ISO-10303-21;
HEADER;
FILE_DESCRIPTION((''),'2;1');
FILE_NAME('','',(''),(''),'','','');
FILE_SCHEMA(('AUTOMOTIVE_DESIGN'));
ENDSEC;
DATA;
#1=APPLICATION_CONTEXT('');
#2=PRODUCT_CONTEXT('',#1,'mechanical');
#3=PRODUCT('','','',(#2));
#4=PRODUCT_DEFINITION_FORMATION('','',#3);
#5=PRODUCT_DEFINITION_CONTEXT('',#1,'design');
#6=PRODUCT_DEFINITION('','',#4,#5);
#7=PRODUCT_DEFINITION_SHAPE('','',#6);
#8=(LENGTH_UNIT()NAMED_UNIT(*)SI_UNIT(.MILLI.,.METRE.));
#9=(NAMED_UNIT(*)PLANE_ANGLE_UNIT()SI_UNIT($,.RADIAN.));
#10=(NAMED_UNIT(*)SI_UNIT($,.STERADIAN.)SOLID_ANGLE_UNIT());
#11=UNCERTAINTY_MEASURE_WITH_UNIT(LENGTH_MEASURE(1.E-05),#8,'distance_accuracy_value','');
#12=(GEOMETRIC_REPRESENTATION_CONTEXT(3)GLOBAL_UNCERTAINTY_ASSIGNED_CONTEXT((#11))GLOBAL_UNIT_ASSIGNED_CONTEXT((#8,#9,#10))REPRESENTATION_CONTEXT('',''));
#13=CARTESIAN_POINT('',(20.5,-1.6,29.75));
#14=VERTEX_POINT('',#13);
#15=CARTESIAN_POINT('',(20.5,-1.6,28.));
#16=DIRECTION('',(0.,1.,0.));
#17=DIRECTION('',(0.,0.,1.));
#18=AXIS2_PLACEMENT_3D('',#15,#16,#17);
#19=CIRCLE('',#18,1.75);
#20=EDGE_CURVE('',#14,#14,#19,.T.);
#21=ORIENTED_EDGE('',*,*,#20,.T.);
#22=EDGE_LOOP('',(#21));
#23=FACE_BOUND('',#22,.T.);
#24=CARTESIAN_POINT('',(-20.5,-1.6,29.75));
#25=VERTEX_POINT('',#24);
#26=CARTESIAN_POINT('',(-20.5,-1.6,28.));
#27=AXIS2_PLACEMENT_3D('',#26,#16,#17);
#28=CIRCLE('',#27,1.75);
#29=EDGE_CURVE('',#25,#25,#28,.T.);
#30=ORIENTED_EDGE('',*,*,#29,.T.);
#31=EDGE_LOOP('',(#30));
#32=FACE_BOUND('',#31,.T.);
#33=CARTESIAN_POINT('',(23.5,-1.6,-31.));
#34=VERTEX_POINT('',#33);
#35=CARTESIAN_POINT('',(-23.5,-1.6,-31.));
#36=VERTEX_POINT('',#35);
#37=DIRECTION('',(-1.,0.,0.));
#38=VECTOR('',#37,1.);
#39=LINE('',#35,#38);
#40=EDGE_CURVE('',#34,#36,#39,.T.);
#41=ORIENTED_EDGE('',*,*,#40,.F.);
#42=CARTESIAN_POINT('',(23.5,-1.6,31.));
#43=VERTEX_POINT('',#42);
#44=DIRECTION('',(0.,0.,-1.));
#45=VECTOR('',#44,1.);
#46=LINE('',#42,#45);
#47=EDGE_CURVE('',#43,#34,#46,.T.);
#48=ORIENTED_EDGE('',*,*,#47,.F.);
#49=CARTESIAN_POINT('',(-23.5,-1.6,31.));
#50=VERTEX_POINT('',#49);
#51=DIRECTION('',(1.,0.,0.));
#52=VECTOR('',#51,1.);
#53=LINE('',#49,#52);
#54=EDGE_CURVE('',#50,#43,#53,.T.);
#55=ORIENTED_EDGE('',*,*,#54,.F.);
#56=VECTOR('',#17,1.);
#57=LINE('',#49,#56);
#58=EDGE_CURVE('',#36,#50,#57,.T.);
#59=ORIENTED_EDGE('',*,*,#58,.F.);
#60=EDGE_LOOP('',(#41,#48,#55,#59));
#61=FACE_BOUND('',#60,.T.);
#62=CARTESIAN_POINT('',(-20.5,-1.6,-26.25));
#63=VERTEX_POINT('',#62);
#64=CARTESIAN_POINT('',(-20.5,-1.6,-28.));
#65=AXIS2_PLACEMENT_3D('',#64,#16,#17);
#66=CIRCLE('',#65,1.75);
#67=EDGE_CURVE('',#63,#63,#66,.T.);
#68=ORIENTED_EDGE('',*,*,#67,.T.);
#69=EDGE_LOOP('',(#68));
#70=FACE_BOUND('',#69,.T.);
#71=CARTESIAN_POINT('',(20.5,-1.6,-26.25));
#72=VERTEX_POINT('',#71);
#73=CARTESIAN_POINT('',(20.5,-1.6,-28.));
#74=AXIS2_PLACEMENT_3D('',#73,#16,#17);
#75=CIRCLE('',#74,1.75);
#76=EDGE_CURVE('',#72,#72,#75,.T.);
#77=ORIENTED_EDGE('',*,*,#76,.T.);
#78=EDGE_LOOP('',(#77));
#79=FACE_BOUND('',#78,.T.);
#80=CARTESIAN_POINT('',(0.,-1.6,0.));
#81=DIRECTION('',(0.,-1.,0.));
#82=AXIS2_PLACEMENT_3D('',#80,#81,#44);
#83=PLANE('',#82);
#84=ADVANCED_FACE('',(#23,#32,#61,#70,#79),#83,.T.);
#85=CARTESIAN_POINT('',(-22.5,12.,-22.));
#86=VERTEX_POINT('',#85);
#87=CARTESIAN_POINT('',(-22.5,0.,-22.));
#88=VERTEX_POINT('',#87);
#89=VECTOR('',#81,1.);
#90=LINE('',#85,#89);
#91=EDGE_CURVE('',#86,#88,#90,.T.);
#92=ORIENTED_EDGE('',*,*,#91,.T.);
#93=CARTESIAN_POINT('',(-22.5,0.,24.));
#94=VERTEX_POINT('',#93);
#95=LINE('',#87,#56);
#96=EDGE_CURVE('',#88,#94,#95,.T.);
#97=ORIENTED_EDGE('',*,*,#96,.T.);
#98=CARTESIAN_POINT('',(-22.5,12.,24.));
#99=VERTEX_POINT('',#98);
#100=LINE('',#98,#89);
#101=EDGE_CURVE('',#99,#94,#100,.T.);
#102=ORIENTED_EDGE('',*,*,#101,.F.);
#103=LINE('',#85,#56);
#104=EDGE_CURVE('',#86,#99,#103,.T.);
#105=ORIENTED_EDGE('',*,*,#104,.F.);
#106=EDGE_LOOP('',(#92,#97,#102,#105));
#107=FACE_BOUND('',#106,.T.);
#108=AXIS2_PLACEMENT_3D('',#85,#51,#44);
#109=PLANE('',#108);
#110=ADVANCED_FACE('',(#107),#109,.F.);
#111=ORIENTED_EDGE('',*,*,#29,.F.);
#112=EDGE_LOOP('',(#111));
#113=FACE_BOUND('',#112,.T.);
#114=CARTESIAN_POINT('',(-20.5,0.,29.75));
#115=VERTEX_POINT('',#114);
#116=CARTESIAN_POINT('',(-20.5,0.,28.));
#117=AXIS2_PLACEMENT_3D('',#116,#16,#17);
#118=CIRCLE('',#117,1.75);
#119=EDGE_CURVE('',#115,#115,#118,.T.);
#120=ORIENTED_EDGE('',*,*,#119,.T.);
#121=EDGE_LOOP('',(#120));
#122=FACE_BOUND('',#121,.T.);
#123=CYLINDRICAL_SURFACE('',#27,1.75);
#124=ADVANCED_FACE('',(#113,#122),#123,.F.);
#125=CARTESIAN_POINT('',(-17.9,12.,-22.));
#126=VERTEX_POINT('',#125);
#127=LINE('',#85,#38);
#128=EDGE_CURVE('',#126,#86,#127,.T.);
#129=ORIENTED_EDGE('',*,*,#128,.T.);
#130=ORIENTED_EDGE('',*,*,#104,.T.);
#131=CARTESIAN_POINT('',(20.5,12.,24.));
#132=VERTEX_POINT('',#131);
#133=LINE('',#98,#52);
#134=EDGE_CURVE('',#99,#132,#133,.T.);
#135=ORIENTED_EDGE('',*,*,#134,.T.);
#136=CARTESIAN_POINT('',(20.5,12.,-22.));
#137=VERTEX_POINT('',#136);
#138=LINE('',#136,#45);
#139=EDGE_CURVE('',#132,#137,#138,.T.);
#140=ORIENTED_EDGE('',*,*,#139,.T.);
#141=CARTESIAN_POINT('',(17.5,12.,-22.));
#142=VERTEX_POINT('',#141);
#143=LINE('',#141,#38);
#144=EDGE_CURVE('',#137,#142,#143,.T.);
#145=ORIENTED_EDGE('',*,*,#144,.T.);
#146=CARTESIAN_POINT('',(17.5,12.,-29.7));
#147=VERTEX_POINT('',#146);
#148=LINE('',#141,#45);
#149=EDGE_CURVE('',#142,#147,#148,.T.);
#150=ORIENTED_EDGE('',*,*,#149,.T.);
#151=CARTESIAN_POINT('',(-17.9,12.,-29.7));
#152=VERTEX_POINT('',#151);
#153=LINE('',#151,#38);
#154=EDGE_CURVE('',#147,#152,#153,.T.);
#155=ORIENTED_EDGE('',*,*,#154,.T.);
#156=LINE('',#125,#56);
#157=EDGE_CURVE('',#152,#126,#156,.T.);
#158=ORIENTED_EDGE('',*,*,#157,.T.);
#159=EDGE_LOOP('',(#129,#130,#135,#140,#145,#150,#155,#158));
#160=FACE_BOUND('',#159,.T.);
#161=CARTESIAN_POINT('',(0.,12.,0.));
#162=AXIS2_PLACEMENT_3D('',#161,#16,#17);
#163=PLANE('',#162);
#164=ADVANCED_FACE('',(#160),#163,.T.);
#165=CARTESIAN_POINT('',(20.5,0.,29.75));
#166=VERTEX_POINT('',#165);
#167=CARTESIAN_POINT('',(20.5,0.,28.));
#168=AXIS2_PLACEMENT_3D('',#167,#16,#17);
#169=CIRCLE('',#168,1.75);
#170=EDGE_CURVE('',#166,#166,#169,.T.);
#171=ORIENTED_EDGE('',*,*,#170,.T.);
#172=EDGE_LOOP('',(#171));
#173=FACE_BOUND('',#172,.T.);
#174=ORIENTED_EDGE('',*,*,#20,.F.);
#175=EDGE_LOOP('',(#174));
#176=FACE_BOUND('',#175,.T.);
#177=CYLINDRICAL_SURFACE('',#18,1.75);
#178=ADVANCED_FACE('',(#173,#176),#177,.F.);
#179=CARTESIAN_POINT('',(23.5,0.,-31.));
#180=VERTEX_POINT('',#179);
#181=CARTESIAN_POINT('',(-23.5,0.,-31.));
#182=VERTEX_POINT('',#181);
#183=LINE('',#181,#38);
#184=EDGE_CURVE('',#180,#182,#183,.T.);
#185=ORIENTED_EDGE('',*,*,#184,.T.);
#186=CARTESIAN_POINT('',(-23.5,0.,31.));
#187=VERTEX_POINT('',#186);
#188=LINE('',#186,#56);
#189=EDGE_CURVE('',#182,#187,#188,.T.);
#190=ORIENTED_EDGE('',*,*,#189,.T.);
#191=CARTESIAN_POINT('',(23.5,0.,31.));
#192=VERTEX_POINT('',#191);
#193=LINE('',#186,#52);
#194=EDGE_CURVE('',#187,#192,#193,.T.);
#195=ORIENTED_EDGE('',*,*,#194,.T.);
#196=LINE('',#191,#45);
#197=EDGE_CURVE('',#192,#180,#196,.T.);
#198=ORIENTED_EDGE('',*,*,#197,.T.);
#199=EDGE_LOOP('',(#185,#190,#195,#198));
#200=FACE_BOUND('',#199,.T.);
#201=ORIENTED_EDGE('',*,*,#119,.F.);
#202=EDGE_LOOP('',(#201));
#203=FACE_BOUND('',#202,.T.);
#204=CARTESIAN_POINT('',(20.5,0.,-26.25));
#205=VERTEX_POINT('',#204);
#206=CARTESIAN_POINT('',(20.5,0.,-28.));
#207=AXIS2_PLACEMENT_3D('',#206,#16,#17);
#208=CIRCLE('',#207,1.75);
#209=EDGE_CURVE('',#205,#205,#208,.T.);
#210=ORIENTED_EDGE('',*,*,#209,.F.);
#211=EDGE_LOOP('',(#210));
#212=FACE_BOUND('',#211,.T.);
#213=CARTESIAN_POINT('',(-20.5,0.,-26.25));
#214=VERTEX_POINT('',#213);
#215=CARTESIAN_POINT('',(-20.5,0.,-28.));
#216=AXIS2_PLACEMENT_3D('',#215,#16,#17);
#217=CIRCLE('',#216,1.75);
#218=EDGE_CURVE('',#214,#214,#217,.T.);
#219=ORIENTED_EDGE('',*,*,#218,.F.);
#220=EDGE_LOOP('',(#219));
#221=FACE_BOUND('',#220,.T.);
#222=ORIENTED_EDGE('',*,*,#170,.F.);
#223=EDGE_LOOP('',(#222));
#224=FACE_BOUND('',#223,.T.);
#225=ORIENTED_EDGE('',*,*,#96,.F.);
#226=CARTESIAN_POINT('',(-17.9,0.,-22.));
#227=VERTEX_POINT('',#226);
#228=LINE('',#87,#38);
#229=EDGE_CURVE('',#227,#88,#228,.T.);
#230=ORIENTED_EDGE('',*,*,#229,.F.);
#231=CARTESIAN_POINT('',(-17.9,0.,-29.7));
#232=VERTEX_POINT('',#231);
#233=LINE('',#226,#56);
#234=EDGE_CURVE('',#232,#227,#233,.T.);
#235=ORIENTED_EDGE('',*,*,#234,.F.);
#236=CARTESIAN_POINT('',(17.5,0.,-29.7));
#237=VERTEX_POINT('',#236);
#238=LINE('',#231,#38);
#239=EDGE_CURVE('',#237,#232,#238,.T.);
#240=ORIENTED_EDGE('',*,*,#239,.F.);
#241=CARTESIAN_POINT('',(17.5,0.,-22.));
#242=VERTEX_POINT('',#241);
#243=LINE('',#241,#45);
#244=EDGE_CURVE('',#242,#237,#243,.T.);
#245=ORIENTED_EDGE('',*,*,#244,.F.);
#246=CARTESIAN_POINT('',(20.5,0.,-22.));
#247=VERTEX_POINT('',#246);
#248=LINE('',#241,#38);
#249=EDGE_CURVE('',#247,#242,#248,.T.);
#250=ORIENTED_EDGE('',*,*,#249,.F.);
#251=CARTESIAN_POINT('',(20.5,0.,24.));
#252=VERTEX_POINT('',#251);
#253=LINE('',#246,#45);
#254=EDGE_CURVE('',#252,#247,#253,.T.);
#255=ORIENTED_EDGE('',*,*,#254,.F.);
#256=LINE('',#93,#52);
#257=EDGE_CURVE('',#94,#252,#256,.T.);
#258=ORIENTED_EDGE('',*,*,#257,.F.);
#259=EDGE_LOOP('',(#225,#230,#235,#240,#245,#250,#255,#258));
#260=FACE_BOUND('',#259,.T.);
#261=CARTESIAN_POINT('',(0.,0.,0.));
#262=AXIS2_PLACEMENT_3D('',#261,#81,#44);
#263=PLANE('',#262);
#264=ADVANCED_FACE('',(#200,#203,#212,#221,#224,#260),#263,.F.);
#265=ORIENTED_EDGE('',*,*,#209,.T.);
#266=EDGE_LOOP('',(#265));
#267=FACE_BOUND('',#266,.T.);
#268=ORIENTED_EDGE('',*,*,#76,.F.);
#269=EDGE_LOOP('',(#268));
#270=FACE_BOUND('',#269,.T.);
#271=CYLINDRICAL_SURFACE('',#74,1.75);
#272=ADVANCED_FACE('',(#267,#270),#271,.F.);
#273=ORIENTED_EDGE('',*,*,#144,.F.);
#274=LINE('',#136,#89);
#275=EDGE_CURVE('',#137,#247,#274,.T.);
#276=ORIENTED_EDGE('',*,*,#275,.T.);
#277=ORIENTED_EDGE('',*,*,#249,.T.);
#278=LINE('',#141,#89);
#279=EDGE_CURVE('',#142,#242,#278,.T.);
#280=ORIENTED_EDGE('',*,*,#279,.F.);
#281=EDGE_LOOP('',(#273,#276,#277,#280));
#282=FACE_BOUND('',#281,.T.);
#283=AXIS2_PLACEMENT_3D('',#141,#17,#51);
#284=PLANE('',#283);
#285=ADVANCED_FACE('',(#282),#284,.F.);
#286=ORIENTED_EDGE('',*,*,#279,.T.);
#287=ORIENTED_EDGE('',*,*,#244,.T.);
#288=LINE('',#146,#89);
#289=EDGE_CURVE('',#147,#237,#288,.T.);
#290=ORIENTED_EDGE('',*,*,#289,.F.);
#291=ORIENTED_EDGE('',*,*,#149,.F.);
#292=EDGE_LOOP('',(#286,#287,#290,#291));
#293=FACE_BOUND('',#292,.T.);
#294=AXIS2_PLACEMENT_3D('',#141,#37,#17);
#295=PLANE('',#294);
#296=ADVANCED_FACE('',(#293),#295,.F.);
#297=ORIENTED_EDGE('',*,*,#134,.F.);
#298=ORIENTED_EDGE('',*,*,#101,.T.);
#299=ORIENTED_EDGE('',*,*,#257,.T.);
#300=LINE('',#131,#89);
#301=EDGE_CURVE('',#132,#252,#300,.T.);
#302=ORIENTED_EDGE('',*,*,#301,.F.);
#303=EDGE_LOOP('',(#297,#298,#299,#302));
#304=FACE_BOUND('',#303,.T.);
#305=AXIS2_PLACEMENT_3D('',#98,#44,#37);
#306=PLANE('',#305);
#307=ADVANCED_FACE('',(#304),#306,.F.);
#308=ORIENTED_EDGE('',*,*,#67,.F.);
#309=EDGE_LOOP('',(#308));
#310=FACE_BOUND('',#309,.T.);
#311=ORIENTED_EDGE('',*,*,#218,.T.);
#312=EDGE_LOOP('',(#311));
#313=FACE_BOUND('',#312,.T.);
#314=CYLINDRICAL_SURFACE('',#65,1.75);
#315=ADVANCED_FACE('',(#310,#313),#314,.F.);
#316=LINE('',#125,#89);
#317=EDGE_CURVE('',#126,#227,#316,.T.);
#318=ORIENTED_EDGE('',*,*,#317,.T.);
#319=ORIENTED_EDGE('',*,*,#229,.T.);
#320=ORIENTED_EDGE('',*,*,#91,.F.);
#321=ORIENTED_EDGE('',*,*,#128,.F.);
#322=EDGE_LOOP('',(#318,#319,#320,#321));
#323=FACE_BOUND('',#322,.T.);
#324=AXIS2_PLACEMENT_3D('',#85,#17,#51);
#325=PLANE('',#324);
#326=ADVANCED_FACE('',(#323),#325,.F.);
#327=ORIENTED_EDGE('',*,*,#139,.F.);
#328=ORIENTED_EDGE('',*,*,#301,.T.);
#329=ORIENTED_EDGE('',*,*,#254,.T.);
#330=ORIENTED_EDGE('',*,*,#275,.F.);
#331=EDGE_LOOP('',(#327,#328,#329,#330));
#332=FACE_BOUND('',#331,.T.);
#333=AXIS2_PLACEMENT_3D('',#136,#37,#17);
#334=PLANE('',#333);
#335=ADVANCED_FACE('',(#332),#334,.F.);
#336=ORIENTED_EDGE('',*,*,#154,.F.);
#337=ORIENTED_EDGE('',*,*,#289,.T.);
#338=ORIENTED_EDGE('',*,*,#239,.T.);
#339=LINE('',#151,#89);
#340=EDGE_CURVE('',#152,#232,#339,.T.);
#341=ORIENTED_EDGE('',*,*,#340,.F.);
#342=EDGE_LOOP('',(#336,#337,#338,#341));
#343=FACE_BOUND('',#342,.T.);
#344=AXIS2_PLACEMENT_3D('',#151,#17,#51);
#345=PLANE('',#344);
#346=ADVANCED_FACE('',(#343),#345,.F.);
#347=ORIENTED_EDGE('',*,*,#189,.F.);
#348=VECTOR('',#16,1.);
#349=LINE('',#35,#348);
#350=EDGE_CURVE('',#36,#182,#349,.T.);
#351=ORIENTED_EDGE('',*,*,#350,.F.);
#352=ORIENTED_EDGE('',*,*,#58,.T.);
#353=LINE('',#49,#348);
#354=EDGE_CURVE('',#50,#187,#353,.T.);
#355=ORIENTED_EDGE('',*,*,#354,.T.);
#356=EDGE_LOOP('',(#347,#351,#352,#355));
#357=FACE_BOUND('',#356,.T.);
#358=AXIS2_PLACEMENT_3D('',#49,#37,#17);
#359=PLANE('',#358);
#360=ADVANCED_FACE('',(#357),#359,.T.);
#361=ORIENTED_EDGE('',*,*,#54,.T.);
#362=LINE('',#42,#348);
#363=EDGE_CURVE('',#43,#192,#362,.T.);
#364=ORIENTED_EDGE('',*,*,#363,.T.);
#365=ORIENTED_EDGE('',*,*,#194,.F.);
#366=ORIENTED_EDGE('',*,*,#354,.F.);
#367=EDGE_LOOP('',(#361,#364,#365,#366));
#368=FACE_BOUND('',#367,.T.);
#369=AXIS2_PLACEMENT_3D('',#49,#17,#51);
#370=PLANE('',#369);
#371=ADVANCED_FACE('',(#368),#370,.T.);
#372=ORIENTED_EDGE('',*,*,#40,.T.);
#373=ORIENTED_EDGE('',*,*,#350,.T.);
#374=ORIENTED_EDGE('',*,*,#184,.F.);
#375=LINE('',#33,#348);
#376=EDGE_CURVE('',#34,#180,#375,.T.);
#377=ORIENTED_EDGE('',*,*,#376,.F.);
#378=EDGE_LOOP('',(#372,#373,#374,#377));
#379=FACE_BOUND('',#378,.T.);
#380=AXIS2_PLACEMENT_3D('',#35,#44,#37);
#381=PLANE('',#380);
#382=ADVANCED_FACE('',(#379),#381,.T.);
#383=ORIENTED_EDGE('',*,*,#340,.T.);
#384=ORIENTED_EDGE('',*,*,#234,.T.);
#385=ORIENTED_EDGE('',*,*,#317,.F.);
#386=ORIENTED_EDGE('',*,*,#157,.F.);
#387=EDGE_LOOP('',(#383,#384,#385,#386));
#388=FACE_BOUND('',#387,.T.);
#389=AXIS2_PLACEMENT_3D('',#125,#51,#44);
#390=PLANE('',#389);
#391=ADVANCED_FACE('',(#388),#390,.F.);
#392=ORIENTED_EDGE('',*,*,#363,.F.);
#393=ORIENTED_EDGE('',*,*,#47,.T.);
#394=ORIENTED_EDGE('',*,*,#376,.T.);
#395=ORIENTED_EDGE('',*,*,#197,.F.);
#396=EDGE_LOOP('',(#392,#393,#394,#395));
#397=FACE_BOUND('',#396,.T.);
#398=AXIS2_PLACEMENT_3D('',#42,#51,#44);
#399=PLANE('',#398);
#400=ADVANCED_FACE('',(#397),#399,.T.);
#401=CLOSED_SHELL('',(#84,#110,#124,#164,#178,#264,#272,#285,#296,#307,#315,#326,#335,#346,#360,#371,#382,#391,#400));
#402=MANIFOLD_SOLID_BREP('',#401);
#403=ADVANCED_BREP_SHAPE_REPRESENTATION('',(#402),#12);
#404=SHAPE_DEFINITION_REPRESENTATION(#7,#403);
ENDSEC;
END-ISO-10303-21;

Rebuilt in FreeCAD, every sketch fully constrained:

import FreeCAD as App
import Part
import Sketcher
from FreeCAD import Vector
Q = App.Units.Quantity


def add_polygon(sketch, points):
    """Adds a closed chain of lines whose ends are joined by coincident constraints."""
    first, n = sketch.GeometryCount, len(points)
    for a, b in zip(points, points[1:] + points[:1]):
        sketch.addGeometry(Part.LineSegment(App.Vector(*a, 0), App.Vector(*b, 0)), False)
    for i in range(n):
        sketch.addConstraint(Sketcher.Constraint("Coincident", first + i, 2, first + (i + 1) % n, 1))

doc = App.newDocument("Part")
body = doc.addObject("PartDesign::Body", "Body")

# Sketch on XZ plane
sketch1 = body.newObject("Sketcher::SketchObject", "Sketch")
sketch1.AttachmentSupport = (doc.getObject("XZ_Plane"), [""])
sketch1.MapMode = "FlatFace"
add_polygon(sketch1, [(-23.5, -31), (-23.5, 31), (23.5, 31), (23.5, -31)])  # lines 0-3
sketch1.addGeometry(Part.Circle(Vector(-20.5, 28, 0), Vector(0, 0, 1), 1.8), False)  # 4
sketch1.addGeometry(Part.Circle(Vector(20.5, 28, 0), Vector(0, 0, 1), 1.8), False)  # 5
sketch1.addGeometry(Part.Circle(Vector(-20.5, -28, 0), Vector(0, 0, 1), 1.8), False)  # 6
sketch1.addGeometry(Part.Circle(Vector(20.5, -28, 0), Vector(0, 0, 1), 1.8), False)  # 7
sketch1.addConstraint(Sketcher.Constraint("Vertical", 0))
sketch1.addConstraint(Sketcher.Constraint("Horizontal", 1))
sketch1.addConstraint(Sketcher.Constraint("Vertical", 2))
sketch1.addConstraint(Sketcher.Constraint("Horizontal", 3))
sketch1.addConstraint(Sketcher.Constraint("Equal", 4, 5))
sketch1.addConstraint(Sketcher.Constraint("Equal", 5, 6))
sketch1.addConstraint(Sketcher.Constraint("Equal", 6, 7))
sketch1.addConstraint(Sketcher.Constraint("Symmetric", 5, 3, 6, 3, -1, 1))
sketch1.addConstraint(Sketcher.Constraint("Symmetric", 4, 3, 7, 3, -1, 1))
sketch1.addConstraint(Sketcher.Constraint("Symmetric", 0, 2, 2, 2, -1, 1))
sketch1.addConstraint(Sketcher.Constraint("Symmetric", 4, 3, 5, 3, -2))
sketch1.addConstraint(Sketcher.Constraint("Diameter", 4, Q("3.5 mm")))
sketch1.addConstraint(Sketcher.Constraint("DistanceX", 1, 1, 1, 2, Q("47 mm")))
sketch1.addConstraint(Sketcher.Constraint("DistanceY", 0, 1, 0, 2, Q("62 mm")))
sketch1.addConstraint(Sketcher.Constraint("DistanceY", -1, 1, 4, 3, Q("28 mm")))
sketch1.addConstraint(Sketcher.Constraint("DistanceX", 4, 3, 5, 3, Q("41 mm")))
pad1 = body.newObject("PartDesign::Pad", "Pad")
pad1.Profile = sketch1
pad1.Length = 1.6

# Sketch on XZ plane
sketch2 = body.newObject("Sketcher::SketchObject", "Sketch001")
sketch2.AttachmentSupport = (doc.getObject("XZ_Plane"), [""])
sketch2.MapMode = "FlatFace"
add_polygon(sketch2, [(-17.9, -22), (-22.5, -22), (-22.5, 24), (20.5, 24), (20.5, -22), (17.5, -22), (17.5, -29.7), (-17.9, -29.7)])  # lines 0-7
sketch2.addConstraint(Sketcher.Constraint("Horizontal", 0))
sketch2.addConstraint(Sketcher.Constraint("Vertical", 1))
sketch2.addConstraint(Sketcher.Constraint("Horizontal", 2))
sketch2.addConstraint(Sketcher.Constraint("Vertical", 3))
sketch2.addConstraint(Sketcher.Constraint("Horizontal", 4))
sketch2.addConstraint(Sketcher.Constraint("Vertical", 5))
sketch2.addConstraint(Sketcher.Constraint("Horizontal", 6))
sketch2.addConstraint(Sketcher.Constraint("Vertical", 7))
sketch2.addConstraint(Sketcher.Constraint("Horizontal", 0, 2, 3, 2))
sketch2.addConstraint(Sketcher.Constraint("DistanceX", 2, 1, 2, 2, Q("43 mm")))
sketch2.addConstraint(Sketcher.Constraint("DistanceX", 4, 2, 4, 1, Q("3 mm")))
sketch2.addConstraint(Sketcher.Constraint("DistanceY", 1, 1, 1, 2, Q("46 mm")))
sketch2.addConstraint(Sketcher.Constraint("DistanceX", 0, 2, 0, 1, Q("4.6 mm")))
sketch2.addConstraint(Sketcher.Constraint("DistanceY", 5, 2, 5, 1, Q("7.7 mm")))
sketch2.addConstraint(Sketcher.Constraint("DistanceY", 0, 2, -1, 1, Q("22 mm")))
sketch2.addConstraint(Sketcher.Constraint("DistanceX", 0, 2, -1, 1, Q("22.5 mm")))
pad2 = body.newObject("PartDesign::Pad", "Pad001")
pad2.Profile = sketch2
pad2.Length = 12
pad2.Reversed = True

doc.recompute()
